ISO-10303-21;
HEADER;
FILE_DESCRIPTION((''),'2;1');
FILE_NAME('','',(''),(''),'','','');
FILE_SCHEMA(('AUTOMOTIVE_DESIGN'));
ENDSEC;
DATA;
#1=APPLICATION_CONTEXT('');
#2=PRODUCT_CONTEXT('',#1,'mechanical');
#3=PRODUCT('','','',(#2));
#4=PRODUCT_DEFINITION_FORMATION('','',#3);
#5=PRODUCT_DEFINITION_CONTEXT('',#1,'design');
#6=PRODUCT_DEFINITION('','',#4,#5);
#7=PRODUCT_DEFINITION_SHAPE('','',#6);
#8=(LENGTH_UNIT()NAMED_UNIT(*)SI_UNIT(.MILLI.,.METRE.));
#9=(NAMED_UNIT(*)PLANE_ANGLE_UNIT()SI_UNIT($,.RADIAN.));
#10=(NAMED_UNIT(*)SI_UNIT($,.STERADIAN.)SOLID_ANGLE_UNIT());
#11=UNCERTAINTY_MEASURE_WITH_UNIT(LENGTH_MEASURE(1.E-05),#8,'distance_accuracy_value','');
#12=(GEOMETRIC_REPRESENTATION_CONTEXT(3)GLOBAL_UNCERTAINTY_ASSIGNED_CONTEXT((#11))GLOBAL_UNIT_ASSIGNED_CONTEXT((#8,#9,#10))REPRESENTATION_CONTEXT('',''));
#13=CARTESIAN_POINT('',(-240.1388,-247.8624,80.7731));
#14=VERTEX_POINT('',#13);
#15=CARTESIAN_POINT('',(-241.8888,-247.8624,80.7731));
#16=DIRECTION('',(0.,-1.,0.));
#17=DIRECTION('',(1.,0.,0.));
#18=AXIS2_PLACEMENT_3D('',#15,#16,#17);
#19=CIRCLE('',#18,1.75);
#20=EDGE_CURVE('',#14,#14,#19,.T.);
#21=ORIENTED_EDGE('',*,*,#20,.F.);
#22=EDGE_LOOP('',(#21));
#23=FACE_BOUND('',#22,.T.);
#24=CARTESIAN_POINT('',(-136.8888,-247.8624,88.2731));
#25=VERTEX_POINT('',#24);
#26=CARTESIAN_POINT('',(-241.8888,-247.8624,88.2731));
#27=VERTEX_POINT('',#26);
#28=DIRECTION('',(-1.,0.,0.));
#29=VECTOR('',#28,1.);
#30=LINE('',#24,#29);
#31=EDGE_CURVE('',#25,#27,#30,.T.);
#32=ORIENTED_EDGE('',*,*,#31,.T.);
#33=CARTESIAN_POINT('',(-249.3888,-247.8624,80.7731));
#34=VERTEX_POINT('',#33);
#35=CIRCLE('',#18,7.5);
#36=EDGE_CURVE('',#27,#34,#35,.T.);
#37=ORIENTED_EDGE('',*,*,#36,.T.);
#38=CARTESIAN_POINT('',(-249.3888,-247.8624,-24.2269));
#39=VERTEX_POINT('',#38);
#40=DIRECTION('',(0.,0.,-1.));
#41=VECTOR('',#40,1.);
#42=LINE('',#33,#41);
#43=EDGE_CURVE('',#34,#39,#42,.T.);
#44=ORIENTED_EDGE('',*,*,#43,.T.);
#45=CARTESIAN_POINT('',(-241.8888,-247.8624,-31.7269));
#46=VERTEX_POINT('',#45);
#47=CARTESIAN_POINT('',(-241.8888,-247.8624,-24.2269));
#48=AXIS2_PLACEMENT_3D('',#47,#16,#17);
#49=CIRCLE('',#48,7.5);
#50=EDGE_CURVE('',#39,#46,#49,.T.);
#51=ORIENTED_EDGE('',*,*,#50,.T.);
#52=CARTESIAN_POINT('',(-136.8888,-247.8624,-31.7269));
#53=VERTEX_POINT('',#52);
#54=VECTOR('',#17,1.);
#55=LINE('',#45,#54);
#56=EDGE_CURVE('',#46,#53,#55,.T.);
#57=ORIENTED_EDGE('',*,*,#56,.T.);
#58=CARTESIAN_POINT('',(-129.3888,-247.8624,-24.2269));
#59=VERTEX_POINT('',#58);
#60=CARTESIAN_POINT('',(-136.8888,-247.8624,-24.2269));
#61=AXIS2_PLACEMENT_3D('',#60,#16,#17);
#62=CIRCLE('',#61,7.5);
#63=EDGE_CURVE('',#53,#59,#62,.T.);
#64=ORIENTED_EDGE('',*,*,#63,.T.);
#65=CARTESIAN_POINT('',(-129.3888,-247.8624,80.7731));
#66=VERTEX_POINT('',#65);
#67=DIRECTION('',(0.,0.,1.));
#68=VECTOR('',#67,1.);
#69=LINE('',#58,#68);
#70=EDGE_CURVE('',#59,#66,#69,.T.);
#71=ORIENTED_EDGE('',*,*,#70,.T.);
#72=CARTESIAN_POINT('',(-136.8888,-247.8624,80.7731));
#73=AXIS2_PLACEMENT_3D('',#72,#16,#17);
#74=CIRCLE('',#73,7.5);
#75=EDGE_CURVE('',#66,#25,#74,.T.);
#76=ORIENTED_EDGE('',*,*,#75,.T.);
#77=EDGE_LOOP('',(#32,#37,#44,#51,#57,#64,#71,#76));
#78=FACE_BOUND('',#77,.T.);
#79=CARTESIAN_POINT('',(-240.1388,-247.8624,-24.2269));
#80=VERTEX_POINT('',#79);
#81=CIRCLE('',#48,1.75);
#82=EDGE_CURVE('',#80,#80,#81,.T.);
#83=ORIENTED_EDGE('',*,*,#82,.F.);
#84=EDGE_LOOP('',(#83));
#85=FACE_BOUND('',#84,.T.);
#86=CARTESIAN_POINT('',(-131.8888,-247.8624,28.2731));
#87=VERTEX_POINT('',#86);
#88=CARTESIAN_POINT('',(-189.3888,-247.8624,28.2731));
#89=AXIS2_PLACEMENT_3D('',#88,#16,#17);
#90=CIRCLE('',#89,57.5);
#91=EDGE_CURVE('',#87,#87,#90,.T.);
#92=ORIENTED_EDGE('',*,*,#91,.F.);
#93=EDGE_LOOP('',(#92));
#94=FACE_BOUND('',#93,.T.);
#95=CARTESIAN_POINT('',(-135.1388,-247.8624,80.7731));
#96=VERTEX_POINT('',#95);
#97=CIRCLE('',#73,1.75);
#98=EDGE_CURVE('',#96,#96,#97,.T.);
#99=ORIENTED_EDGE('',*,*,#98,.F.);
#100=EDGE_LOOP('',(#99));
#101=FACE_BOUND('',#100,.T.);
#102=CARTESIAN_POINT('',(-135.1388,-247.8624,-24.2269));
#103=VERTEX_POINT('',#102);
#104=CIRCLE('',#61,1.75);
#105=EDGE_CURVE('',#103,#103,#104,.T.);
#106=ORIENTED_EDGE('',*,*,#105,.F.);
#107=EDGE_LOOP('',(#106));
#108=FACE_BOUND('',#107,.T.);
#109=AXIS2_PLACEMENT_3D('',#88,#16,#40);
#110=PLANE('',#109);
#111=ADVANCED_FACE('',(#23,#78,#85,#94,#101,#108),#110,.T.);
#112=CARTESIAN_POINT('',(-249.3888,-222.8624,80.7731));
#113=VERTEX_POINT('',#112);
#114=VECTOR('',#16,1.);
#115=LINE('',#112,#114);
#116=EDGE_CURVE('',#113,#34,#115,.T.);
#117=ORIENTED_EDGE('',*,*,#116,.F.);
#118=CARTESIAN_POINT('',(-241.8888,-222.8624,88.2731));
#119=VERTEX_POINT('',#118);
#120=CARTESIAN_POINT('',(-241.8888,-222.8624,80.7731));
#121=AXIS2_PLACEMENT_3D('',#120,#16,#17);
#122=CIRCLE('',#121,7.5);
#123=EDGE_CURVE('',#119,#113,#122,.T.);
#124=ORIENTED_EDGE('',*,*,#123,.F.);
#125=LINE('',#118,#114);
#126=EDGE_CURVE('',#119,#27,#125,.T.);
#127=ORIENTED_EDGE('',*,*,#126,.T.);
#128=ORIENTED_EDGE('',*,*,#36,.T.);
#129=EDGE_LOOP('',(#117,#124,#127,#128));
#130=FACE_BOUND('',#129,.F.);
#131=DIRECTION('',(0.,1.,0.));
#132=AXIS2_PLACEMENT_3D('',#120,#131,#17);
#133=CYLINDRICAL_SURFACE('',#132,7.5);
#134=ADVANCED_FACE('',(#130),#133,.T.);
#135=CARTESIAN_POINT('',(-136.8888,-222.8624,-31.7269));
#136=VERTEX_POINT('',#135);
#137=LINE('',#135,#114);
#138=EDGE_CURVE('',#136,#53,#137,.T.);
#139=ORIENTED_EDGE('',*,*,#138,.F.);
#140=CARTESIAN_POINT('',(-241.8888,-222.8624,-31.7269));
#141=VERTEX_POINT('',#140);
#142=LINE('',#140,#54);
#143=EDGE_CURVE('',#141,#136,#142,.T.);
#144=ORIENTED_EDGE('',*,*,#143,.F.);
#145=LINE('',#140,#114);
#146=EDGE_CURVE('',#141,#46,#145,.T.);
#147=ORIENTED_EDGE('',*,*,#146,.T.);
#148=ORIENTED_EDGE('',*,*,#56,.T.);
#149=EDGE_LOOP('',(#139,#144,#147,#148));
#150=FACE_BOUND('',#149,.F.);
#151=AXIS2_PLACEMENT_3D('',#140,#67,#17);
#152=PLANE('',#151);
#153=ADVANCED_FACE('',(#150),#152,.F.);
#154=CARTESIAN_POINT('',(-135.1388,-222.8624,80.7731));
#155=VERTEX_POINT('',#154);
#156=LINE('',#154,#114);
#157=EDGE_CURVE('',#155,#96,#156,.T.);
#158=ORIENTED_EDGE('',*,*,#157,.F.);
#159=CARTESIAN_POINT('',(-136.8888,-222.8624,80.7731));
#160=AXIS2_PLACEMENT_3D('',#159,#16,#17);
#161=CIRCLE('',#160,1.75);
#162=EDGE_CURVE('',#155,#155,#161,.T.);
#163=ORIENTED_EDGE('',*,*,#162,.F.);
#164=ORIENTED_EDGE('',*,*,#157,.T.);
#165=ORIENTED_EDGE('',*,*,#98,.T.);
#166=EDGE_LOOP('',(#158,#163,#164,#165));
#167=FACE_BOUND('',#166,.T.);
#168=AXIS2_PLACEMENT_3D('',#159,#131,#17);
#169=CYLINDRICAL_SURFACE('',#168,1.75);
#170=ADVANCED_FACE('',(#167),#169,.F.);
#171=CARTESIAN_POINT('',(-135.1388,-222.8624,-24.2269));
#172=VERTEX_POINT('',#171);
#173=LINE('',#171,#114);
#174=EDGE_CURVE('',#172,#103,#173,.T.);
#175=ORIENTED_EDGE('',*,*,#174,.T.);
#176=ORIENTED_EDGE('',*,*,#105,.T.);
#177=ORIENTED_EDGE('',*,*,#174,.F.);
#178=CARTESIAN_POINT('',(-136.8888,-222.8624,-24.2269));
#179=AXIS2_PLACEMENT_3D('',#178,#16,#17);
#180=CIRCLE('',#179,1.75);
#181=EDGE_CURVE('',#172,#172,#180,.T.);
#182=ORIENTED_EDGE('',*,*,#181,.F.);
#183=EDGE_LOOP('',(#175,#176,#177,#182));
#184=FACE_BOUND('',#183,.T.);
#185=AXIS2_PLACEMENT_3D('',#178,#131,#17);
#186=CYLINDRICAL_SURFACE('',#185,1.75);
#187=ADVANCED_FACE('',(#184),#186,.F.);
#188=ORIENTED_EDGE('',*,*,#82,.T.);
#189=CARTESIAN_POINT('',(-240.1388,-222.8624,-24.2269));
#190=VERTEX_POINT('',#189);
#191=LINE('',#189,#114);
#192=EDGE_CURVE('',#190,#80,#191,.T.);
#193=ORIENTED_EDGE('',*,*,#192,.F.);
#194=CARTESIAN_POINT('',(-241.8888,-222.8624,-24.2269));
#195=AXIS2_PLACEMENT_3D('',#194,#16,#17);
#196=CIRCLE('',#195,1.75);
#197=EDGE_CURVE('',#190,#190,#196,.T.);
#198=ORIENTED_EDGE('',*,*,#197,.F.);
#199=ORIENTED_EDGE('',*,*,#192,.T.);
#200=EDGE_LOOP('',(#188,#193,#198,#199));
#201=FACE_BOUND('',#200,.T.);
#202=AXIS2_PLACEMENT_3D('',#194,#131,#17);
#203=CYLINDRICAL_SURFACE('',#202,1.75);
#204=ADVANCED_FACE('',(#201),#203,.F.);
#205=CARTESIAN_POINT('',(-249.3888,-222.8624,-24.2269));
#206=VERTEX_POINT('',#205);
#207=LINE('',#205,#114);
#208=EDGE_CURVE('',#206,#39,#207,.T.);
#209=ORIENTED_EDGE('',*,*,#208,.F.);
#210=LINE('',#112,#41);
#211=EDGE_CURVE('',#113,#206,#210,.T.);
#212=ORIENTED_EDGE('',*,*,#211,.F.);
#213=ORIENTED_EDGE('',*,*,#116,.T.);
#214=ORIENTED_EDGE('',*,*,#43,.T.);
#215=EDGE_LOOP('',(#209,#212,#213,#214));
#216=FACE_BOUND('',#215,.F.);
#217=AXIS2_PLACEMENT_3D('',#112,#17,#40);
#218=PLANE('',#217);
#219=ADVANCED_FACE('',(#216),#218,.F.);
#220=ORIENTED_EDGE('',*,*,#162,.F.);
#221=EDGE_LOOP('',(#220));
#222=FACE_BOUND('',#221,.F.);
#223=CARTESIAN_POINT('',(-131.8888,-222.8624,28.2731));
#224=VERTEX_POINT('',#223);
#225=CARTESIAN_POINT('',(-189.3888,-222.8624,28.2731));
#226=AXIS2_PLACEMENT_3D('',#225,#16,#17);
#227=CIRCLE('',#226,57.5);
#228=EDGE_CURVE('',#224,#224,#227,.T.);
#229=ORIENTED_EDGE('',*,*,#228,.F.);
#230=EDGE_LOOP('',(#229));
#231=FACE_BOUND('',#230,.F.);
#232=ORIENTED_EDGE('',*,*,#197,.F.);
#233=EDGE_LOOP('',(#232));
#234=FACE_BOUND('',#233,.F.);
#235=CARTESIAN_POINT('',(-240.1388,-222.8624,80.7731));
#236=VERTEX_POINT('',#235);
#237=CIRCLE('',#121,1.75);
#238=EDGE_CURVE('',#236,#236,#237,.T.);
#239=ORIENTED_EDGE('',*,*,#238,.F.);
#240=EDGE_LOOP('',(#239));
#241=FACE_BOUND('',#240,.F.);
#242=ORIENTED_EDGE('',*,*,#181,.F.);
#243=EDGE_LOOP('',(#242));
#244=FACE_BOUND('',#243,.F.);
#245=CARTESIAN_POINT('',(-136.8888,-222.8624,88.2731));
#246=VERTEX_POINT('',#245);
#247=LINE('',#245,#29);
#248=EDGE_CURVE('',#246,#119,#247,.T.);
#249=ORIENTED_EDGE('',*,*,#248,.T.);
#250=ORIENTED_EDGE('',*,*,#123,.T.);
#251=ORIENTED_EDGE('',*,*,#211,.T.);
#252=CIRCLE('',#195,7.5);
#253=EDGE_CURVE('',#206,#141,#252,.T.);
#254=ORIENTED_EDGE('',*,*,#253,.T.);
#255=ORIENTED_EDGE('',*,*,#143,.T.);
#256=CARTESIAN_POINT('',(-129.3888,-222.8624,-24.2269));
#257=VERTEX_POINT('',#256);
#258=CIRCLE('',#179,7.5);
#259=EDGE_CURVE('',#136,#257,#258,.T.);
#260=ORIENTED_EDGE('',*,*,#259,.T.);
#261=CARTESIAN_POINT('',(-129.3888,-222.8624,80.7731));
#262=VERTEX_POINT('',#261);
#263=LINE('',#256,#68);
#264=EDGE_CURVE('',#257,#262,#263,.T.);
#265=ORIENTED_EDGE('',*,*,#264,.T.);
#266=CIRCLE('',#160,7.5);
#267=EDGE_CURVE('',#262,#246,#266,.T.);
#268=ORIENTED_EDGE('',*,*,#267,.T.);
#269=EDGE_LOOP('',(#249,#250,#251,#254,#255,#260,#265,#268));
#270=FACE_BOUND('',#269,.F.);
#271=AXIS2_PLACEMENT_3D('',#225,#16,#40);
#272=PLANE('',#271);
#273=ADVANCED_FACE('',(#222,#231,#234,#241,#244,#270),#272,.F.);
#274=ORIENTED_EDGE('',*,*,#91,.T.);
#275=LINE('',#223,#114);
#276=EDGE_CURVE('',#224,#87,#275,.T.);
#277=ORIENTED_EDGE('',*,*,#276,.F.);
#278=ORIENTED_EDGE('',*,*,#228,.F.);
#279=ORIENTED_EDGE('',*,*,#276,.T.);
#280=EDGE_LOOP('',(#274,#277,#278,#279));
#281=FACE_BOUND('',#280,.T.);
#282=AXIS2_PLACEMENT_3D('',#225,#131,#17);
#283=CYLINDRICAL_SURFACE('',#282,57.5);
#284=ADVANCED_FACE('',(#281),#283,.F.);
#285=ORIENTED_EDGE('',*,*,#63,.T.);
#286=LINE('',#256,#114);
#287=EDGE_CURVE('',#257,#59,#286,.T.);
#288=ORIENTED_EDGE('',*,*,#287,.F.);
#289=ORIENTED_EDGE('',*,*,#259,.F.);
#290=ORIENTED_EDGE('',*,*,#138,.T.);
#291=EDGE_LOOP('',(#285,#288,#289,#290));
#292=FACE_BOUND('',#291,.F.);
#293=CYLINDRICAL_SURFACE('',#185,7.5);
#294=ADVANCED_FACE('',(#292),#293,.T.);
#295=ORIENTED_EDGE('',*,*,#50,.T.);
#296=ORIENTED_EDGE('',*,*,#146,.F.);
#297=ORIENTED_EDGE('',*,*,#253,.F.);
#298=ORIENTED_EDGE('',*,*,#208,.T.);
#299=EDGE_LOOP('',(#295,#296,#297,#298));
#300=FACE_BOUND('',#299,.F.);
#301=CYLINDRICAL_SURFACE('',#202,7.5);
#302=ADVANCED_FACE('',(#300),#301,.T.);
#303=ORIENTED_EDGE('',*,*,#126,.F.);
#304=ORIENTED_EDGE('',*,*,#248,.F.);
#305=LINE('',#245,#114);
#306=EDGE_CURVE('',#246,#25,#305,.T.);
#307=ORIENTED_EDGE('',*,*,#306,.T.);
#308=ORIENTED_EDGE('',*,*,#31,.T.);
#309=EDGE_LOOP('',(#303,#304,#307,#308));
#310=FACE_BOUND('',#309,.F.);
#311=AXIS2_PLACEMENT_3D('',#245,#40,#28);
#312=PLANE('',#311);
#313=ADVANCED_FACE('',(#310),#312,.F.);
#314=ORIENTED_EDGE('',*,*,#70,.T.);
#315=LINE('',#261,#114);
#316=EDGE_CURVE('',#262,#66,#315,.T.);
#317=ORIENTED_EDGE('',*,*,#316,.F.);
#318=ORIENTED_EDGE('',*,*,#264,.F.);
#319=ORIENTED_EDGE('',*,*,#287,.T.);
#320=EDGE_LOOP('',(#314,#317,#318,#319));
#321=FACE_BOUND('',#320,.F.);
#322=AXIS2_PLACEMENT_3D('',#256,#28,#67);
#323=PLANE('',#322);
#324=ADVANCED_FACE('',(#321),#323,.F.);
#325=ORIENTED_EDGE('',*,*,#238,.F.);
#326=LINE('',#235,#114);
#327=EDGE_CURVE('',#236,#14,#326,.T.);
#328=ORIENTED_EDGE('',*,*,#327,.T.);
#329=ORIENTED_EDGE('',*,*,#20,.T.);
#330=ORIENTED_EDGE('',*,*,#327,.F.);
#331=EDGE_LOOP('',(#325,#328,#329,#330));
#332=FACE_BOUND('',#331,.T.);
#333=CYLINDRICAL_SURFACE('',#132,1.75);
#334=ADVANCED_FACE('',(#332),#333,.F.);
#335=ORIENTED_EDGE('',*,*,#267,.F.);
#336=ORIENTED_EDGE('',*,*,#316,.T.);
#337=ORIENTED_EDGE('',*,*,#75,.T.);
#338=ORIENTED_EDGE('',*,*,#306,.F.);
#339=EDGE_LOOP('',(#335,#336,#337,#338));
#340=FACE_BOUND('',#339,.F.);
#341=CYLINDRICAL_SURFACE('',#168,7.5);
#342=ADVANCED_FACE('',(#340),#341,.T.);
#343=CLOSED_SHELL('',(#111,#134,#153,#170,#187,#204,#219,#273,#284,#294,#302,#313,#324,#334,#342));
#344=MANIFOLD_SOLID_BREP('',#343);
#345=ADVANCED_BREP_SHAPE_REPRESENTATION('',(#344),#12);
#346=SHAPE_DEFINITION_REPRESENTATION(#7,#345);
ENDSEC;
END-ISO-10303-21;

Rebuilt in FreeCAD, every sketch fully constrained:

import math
import FreeCAD as App
import Part
import Sketcher
from FreeCAD import Vector

doc = App.newDocument("Part")
body = doc.addObject("PartDesign::Body", "Body")

sketch1 = body.newObject("Sketcher::SketchObject", "Sketch")
sketch1.AttachmentSupport = (doc.getObject("XZ_Plane"), [""])
sketch1.MapMode = "FlatFace"
sketch1.AttachmentOffset = App.Placement(Vector(0, 0, 222.8624), App.Rotation())
sketch1.addGeometry(Part.LineSegment(Vector(-241.9, -31.7, 0), Vector(-136.9, -31.7, 0)), False)
sketch1.addGeometry(Part.ArcOfCircle(Part.Circle(Vector(-136.9, -24.2, 0), Vector(0, 0, 1), 7.5), math.radians(-90), math.radians(0)), False)
sketch1.addGeometry(Part.LineSegment(Vector(-129.4, -24.2, 0), Vector(-129.4, 80.8, 0)), False)
sketch1.addGeometry(Part.ArcOfCircle(Part.Circle(Vector(-136.9, 80.8, 0), Vector(0, 0, 1), 7.5), math.radians(0), math.radians(90)), False)
sketch1.addGeometry(Part.LineSegment(Vector(-136.9, 88.3, 0), Vector(-241.9, 88.3, 0)), False)
sketch1.addGeometry(Part.ArcOfCircle(Part.Circle(Vector(-241.9, 80.8, 0), Vector(0, 0, 1), 7.5), math.radians(90), math.radians(180)), False)
sketch1.addGeometry(Part.LineSegment(Vector(-249.4, 80.8, 0), Vector(-249.4, -24.2, 0)), False)
sketch1.addGeometry(Part.ArcOfCircle(Part.Circle(Vector(-241.9, -24.2, 0), Vector(0, 0, 1), 7.5), math.radians(180), math.radians(270)), False)
sketch1.addGeometry(Part.Circle(Vector(-241.9, -24.2, 0), Vector(0, 0, 1), 1.8), False)
sketch1.addGeometry(Part.Circle(Vector(-136.9, -24.2, 0), Vector(0, 0, 1), 1.8), False)
sketch1.addGeometry(Part.Circle(Vector(-241.9, 80.8, 0), Vector(0, 0, 1), 1.8), False)
sketch1.addGeometry(Part.Circle(Vector(-189.4, 28.3, 0), Vector(0, 0, 1), 57.5), False)
sketch1.addGeometry(Part.Circle(Vector(-136.9, 80.8, 0), Vector(0, 0, 1), 1.8), False)
sketch1.addConstraint(Sketcher.Constraint("Tangent", 0, 2, 1, 1))
sketch1.addConstraint(Sketcher.Constraint("Tangent", 1, 2, 2, 1))
sketch1.addConstraint(Sketcher.Constraint("Tangent", 2, 2, 3, 1))
sketch1.addConstraint(Sketcher.Constraint("Tangent", 3, 2, 4, 1))
sketch1.addConstraint(Sketcher.Constraint("Tangent", 4, 2, 5, 1))
sketch1.addConstraint(Sketcher.Constraint("Tangent", 5, 2, 6, 1))
sketch1.addConstraint(Sketcher.Constraint("Tangent", 6, 2, 7, 1))
sketch1.addConstraint(Sketcher.Constraint("Tangent", 7, 2, 0, 1))
sketch1.addConstraint(Sketcher.Constraint("Horizontal", 0))
sketch1.addConstraint(Sketcher.Constraint("Vertical", 2))
sketch1.addConstraint(Sketcher.Constraint("Horizontal", 4))
sketch1.addConstraint(Sketcher.Constraint("Vertical", 6))
sketch1.addConstraint(Sketcher.Constraint("Coincident", 8, 3, 7, 3))
sketch1.addConstraint(Sketcher.Constraint("Coincident", 9, 3, 1, 3))
sketch1.addConstraint(Sketcher.Constraint("Coincident", 10, 3, 5, 3))
sketch1.addConstraint(Sketcher.Constraint("Coincident", 12, 3, 3, 3))
sketch1.addConstraint(Sketcher.Constraint("Equal", 1, 3))
sketch1.addConstraint(Sketcher.Constraint("Equal", 3, 5))
sketch1.addConstraint(Sketcher.Constraint("Equal", 5, 7))
sketch1.addConstraint(Sketcher.Constraint("Equal", 8, 9))
sketch1.addConstraint(Sketcher.Constraint("Equal", 9, 10))
sketch1.addConstraint(Sketcher.Constraint("Equal", 10, 12))
sketch1.addConstraint(Sketcher.Constraint("Equal", 4, 2))
sketch1.addConstraint(Sketcher.Constraint("Diameter", 11, 115.0))
sketch1.addConstraint(Sketcher.Constraint("Diameter", 8, 3.5))
sketch1.addConstraint(Sketcher.Constraint("Radius", 1, 7.5))
sketch1.addConstraint(Sketcher.Constraint("DistanceX", 0, 1, 0, 2, 105.0))
sketch1.addConstraint(Sketcher.Constraint("DistanceY", 0, 2, 11, 3, 60.0))
sketch1.addConstraint(Sketcher.Constraint("DistanceX", 11, 3, 1, 2, 60.0))
sketch1.addConstraint(Sketcher.Constraint("DistanceY", 1, 3, -1, 1, 24.227))
sketch1.addConstraint(Sketcher.Constraint("DistanceX", 1, 3, -1, 1, 136.8888))
pad1 = body.newObject("PartDesign::Pad", "Pad")
pad1.Profile = sketch1
pad1.Length = 25

doc.recompute()
